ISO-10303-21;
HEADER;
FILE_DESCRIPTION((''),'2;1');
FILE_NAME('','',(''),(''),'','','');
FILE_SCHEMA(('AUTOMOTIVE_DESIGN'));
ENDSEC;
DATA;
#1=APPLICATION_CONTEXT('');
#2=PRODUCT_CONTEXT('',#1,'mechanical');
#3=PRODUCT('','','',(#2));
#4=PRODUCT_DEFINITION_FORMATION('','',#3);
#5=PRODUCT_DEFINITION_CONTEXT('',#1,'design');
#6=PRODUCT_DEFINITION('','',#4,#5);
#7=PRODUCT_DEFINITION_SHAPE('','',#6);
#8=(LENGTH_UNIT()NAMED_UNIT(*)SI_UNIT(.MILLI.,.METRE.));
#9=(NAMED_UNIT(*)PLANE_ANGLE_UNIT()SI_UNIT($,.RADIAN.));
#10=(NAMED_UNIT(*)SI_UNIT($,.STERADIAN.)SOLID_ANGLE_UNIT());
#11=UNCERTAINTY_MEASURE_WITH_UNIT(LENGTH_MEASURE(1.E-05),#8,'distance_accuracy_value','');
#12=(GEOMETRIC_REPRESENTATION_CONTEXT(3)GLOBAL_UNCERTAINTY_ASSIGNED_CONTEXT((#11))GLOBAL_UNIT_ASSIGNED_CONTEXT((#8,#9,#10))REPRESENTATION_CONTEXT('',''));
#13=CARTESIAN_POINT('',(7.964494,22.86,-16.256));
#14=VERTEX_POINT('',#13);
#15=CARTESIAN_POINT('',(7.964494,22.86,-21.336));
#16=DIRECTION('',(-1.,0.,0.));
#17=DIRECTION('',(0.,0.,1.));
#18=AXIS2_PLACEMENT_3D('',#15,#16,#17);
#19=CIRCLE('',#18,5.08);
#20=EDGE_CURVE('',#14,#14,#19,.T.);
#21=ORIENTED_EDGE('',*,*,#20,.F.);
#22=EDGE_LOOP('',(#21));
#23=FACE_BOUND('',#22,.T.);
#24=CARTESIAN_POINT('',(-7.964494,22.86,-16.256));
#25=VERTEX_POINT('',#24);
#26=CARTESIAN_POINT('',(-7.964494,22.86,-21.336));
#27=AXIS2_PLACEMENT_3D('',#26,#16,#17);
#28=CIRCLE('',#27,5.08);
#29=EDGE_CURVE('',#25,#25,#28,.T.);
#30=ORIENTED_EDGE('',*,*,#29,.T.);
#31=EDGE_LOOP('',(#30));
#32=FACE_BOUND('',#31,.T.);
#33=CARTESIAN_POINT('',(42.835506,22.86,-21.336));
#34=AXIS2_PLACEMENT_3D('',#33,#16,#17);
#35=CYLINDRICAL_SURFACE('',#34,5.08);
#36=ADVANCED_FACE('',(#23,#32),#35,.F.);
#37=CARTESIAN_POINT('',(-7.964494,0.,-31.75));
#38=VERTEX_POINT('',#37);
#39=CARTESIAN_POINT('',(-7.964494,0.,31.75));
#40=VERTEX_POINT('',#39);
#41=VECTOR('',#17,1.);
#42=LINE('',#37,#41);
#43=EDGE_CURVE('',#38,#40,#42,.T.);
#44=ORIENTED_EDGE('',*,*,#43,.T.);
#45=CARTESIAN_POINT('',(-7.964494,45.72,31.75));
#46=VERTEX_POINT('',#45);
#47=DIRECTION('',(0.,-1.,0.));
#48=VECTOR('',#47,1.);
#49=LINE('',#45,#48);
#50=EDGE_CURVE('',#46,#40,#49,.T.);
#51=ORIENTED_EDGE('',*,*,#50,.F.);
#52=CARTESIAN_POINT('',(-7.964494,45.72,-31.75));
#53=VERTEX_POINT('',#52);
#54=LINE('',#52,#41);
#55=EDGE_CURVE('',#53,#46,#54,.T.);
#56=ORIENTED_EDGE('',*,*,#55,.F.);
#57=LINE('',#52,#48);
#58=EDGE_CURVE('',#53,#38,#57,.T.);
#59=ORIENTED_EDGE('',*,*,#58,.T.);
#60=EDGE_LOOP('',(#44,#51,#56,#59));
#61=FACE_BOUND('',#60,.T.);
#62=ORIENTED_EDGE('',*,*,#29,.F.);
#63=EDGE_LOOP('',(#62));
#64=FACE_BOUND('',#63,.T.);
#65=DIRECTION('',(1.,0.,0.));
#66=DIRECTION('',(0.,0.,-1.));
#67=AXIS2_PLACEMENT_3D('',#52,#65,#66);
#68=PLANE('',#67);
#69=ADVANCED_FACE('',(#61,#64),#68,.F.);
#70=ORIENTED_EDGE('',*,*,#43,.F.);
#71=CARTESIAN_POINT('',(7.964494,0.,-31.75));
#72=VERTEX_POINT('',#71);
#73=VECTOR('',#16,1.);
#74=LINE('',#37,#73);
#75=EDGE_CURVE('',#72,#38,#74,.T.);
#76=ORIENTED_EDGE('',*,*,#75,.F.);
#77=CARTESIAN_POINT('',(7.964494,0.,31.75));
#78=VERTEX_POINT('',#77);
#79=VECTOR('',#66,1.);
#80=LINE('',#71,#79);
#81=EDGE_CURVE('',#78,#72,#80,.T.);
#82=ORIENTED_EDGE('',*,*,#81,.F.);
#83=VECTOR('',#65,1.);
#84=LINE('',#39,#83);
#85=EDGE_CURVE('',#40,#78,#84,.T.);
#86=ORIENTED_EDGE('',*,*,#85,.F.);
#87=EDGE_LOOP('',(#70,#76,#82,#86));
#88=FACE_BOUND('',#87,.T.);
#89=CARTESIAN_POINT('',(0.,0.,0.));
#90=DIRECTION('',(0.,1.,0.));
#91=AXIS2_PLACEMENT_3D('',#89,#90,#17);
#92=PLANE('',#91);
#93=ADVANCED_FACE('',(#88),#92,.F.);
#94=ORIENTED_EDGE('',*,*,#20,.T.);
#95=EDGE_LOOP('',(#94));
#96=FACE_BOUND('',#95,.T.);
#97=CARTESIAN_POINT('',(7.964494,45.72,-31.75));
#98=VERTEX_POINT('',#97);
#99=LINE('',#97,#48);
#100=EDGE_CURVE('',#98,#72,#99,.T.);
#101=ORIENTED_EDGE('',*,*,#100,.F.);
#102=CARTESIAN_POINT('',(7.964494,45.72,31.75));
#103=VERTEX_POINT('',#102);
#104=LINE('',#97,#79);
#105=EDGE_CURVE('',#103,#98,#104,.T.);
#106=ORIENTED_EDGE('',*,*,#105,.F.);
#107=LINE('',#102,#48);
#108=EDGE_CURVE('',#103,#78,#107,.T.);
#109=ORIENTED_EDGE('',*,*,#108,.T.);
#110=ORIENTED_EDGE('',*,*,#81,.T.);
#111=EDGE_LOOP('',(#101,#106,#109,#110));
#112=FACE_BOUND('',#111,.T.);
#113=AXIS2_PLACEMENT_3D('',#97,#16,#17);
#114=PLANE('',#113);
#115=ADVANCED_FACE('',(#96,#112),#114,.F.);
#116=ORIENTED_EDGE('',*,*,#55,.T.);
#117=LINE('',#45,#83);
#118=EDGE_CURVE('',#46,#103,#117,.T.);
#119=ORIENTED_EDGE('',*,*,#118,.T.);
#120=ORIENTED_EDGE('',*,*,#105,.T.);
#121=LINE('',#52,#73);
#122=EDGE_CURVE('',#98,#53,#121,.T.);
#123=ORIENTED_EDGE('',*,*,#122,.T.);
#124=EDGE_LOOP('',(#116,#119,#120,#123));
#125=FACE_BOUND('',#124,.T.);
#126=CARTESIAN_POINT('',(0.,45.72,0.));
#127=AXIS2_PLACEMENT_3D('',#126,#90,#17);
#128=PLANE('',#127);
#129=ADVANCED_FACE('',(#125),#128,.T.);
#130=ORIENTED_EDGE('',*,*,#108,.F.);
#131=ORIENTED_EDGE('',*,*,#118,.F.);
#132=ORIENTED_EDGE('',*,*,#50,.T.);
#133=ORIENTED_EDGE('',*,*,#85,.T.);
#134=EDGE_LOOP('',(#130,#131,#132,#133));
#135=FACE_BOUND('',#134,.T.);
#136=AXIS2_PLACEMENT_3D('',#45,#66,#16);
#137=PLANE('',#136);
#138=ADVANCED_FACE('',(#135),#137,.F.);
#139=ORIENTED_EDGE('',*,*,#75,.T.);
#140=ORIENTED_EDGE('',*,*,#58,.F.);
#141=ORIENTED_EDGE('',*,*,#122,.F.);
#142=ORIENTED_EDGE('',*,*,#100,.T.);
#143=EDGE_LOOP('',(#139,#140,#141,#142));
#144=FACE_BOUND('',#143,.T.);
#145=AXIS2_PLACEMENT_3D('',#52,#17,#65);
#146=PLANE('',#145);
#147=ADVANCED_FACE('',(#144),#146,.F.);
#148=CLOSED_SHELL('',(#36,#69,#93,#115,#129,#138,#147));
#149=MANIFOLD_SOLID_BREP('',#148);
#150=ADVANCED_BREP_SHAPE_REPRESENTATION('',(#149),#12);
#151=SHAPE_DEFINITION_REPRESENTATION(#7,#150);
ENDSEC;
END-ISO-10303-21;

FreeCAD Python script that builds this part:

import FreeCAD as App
import Part
import Sketcher
from FreeCAD import Vector
Q = App.Units.Quantity

doc = App.newDocument("Part")
body = doc.addObject("PartDesign::Body", "Body")

sketch1 = body.newObject("Sketcher::SketchObject", "Sketch")
sketch1.AttachmentSupport = (doc.getObject("XZ_Plane"), [""])
sketch1.MapMode = "FlatFace"
sketch1.addGeometry([
    Part.LineSegment(Vector(-8, -32, 0), Vector(-8, 32, 0)),
    Part.LineSegment(Vector(-8, 32, 0), Vector(8, 32, 0)),
    Part.LineSegment(Vector(8, 32, 0), Vector(8, -32, 0)),
    Part.LineSegment(Vector(8, -32, 0), Vector(-8, -32, 0)),
], False)
sketch1.addConstraint([
    Sketcher.Constraint("Coincident", 0, 2, 1, 1),
    Sketcher.Constraint("Coincident", 1, 2, 2, 1),
    Sketcher.Constraint("Coincident", 2, 2, 3, 1),
    Sketcher.Constraint("Coincident", 3, 2, 0, 1),
    Sketcher.Constraint("Vertical", 0),
    Sketcher.Constraint("Horizontal", 1),
    Sketcher.Constraint("Vertical", 2),
    Sketcher.Constraint("Horizontal", 3),
    Sketcher.Constraint("Symmetric", 0, 2, 2, 2, -1, 1),
    Sketcher.Constraint("DistanceY", 0, 1, 0, 2, Q("2.5 in")),
    Sketcher.Constraint("DistanceX", 1, 1, 1, 2, Q("15.928987 mm")),
])
pad1 = body.newObject("PartDesign::Pad", "Pad")
pad1.Profile = sketch1
pad1.Length = Q("1.8 in")
pad1.Reversed = True

sketch2 = body.newObject("Sketcher::SketchObject", "Sketch001")
sketch2.AttachmentSupport = (doc.getObject("YZ_Plane"), [""])
sketch2.MapMode = "FlatFace"
sketch2.AttachmentOffset = App.Placement(Vector(0, 0, -7.964494), App.Rotation())
sketch2.addGeometry(Part.Circle(Vector(23, -21, 0), Vector(0, 0, 1), 5), False)
sketch2.addConstraint([
    Sketcher.Constraint("Diameter", 0, Q("0.4 in")),
    Sketcher.Constraint("DistanceX", -1, 1, 0, 3, Q("0.9 in")),
    Sketcher.Constraint("DistanceY", 0, 3, -1, 1, Q("0.84 in")),
])
pocket1 = body.newObject("PartDesign::Pocket", "Pocket")
pocket1.Profile = sketch2
pocket1.Length = Q("2 in")
pocket1.Reversed = True

doc.recompute()
